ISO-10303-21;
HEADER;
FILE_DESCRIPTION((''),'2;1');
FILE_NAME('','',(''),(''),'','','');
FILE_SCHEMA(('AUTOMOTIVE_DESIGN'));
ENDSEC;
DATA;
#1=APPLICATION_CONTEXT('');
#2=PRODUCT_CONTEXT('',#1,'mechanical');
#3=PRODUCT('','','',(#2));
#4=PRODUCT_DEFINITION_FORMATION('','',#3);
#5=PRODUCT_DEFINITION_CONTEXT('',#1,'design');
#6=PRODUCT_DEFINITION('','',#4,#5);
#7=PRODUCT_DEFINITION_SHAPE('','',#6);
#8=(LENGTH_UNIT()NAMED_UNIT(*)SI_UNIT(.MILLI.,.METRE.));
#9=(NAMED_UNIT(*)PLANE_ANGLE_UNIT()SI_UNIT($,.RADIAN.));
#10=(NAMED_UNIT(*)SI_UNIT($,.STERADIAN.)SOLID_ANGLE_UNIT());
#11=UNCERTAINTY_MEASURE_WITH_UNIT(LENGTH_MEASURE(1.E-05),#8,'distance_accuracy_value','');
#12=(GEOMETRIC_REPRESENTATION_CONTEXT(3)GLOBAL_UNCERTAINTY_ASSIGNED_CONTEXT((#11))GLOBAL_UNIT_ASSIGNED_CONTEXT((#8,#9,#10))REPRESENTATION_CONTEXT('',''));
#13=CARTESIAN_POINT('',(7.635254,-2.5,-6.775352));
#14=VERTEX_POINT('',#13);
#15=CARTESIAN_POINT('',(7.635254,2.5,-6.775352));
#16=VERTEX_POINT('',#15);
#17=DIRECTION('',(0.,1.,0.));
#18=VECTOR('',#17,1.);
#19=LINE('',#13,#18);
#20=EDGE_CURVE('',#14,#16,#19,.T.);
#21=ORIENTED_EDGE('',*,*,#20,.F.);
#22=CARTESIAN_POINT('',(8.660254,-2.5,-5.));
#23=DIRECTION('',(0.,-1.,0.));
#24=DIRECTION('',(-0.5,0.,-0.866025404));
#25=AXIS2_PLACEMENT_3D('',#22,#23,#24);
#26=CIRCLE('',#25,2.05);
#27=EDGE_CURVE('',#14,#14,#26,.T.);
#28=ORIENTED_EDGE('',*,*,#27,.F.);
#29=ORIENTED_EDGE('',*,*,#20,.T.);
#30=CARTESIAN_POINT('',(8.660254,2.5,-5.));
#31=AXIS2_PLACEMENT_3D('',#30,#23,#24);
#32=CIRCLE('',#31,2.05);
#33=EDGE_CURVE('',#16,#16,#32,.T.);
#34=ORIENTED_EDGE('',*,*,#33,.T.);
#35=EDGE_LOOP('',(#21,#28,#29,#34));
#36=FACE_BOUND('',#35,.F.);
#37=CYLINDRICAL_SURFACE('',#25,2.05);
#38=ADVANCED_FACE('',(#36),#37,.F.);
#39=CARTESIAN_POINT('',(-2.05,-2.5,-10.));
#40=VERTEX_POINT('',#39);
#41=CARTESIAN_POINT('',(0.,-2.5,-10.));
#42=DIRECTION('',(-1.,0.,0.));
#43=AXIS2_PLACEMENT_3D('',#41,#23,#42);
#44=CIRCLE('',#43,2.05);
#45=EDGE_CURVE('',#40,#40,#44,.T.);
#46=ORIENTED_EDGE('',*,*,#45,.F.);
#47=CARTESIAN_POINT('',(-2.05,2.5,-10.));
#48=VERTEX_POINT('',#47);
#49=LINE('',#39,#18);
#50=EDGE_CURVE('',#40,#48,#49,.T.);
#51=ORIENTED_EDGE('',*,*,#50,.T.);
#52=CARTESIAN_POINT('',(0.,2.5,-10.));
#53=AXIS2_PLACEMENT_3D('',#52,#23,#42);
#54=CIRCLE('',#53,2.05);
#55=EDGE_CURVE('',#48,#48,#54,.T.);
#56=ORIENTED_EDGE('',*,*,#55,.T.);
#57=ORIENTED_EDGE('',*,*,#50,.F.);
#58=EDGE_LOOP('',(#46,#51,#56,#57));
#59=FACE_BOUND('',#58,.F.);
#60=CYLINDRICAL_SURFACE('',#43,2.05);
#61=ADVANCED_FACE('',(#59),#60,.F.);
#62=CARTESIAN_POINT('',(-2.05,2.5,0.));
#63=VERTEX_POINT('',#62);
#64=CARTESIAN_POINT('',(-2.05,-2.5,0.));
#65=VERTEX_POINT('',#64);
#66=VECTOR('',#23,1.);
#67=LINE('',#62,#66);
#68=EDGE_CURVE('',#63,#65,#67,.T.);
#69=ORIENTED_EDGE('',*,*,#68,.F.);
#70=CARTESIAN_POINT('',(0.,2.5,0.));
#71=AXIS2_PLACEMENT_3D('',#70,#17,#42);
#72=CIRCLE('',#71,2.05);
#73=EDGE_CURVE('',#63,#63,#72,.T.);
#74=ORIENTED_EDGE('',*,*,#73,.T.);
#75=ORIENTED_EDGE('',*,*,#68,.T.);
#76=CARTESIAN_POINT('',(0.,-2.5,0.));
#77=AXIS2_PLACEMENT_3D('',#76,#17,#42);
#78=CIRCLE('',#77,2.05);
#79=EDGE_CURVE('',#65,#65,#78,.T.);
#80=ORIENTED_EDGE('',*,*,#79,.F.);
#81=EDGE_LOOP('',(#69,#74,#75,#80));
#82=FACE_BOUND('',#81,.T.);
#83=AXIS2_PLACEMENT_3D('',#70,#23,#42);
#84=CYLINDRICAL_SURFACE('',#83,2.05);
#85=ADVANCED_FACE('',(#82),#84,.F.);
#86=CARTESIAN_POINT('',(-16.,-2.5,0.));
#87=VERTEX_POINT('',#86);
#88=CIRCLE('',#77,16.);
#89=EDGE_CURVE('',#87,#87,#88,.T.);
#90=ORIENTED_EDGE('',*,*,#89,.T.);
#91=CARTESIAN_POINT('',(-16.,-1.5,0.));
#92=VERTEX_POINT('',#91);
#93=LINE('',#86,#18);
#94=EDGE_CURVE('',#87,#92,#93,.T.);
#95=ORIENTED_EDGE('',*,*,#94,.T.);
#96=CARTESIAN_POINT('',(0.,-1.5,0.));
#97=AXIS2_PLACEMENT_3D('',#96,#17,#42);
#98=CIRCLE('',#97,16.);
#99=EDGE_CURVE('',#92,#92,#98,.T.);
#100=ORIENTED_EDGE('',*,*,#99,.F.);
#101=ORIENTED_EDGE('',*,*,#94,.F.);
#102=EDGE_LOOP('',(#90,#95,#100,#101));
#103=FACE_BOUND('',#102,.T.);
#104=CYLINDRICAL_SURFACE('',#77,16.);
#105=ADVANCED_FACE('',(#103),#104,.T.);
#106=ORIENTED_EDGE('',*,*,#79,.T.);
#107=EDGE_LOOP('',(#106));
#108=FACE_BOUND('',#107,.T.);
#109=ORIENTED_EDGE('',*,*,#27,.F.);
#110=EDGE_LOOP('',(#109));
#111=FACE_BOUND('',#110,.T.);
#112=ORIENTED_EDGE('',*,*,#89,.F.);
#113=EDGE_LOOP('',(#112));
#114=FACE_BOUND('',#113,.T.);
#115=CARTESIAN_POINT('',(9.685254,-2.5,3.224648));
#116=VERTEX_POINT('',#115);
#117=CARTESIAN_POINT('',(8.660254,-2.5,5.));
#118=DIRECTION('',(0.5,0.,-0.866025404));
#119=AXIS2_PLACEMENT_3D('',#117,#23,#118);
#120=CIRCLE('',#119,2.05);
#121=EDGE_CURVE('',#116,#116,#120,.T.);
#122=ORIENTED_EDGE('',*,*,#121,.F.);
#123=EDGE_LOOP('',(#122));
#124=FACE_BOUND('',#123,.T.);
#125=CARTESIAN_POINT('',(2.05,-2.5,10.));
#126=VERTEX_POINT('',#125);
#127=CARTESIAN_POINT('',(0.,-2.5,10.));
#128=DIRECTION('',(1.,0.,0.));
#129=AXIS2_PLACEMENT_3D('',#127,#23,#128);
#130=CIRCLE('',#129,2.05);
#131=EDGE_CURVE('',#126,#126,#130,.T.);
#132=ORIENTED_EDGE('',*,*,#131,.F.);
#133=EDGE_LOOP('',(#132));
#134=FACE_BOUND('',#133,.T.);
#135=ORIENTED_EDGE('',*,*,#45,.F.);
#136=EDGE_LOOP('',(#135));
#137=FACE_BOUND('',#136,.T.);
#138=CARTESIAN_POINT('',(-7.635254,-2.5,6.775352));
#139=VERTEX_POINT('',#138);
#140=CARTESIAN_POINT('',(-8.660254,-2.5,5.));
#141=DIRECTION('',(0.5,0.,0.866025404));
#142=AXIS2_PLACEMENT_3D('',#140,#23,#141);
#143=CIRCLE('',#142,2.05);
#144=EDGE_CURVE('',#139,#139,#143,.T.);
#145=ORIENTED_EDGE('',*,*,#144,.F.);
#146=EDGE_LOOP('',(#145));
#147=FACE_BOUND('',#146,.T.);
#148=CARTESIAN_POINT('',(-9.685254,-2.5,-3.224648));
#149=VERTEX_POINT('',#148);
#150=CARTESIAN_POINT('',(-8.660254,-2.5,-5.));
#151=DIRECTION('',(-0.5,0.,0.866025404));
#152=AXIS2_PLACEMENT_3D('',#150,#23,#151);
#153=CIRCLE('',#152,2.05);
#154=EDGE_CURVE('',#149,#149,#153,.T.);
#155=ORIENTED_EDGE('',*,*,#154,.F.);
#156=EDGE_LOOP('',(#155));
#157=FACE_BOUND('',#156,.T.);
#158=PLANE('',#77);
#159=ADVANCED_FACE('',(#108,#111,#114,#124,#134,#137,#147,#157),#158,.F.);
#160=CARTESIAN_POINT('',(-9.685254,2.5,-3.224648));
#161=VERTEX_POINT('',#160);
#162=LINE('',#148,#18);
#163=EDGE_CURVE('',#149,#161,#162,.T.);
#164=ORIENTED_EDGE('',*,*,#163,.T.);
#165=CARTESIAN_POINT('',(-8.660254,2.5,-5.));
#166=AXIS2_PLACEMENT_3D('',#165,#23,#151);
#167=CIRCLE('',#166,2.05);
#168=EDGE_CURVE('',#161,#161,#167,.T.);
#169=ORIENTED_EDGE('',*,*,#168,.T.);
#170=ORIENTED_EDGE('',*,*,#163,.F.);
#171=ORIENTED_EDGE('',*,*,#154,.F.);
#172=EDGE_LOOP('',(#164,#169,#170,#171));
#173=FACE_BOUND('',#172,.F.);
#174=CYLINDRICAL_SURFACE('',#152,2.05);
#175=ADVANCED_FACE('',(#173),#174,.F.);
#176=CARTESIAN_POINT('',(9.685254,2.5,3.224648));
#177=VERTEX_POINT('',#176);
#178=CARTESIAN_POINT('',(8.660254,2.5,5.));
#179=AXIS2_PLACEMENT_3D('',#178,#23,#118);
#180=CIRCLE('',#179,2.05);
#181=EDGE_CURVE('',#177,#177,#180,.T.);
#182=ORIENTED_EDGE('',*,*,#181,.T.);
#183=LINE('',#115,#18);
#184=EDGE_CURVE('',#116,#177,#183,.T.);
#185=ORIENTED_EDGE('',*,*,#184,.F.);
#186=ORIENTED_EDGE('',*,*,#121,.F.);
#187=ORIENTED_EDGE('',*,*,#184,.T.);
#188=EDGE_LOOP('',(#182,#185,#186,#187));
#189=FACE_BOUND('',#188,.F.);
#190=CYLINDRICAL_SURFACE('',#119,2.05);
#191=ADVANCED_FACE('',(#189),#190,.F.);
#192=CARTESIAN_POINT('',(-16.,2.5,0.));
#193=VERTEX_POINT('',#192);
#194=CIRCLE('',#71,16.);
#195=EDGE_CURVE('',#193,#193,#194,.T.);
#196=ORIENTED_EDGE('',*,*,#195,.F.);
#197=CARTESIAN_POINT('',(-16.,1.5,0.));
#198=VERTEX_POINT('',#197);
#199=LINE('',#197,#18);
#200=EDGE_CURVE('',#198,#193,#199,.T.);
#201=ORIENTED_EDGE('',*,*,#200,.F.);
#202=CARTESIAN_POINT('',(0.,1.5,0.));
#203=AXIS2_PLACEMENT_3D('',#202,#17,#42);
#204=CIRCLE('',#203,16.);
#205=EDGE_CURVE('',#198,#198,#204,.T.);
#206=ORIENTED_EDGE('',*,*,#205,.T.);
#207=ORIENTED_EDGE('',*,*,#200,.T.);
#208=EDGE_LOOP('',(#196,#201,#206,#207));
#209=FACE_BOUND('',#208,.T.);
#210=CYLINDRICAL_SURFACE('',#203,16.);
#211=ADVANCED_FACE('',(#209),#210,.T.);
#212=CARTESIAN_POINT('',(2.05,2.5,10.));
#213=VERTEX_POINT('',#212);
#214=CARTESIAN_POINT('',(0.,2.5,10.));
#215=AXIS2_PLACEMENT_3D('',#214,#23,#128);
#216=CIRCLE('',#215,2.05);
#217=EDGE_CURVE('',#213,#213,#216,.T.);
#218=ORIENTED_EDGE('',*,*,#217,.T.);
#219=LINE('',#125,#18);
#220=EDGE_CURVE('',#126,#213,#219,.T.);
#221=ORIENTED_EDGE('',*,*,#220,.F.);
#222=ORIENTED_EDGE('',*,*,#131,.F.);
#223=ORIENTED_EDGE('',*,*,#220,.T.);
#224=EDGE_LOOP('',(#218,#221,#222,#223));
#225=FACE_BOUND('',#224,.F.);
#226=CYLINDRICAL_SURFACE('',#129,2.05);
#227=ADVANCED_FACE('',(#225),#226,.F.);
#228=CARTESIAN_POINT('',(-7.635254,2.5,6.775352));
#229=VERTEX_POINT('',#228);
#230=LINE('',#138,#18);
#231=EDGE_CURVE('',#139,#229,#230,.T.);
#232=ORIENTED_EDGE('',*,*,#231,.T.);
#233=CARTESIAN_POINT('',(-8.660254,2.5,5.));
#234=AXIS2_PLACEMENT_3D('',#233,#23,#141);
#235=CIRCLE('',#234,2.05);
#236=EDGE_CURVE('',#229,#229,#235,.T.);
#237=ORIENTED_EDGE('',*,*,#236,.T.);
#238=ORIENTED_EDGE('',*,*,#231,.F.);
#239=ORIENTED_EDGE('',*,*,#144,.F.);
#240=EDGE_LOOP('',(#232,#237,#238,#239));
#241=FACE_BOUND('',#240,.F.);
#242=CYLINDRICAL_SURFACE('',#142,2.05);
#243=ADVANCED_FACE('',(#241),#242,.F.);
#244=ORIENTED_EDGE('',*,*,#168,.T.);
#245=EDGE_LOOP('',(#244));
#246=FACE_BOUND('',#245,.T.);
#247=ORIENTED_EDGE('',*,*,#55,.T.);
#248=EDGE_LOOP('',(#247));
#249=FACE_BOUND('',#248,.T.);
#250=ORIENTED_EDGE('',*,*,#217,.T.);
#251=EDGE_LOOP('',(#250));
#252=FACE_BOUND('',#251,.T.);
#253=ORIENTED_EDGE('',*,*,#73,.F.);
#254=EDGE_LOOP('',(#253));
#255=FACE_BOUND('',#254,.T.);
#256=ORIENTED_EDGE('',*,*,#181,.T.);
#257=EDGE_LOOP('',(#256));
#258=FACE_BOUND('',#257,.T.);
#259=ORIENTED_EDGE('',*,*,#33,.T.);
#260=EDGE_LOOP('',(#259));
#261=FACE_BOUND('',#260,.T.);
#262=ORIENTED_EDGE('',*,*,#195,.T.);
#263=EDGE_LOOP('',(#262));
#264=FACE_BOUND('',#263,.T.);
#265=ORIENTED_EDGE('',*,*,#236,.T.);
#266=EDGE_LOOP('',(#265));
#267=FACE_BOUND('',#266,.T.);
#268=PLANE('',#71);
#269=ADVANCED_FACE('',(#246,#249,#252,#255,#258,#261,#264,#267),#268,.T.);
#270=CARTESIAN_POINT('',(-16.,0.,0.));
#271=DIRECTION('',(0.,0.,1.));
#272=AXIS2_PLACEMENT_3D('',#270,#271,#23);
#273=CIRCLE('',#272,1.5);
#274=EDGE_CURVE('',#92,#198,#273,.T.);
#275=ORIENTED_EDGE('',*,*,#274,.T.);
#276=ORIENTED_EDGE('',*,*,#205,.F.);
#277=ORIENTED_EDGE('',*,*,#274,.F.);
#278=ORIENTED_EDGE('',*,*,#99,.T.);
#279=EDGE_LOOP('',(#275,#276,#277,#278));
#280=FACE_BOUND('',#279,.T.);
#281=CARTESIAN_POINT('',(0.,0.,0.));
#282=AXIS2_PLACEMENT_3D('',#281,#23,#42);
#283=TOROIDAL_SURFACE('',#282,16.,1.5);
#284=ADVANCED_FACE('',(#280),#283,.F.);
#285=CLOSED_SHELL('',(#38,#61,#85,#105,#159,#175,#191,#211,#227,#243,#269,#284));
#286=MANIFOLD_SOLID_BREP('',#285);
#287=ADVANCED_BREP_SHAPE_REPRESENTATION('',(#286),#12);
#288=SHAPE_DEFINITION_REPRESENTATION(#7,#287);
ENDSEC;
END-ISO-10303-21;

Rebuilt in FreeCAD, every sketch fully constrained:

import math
import FreeCAD as App
import Part
import Sketcher

doc = App.newDocument("Part")
body = doc.addObject("PartDesign::Body", "Body")

sketch1 = doc.addObject("Sketcher::SketchObject", "Sketch")
body.addObject(sketch1)
sketch1.AttachmentSupport = (doc.XY_Plane, [""])
sketch1.MapMode = "FlatFace"
sketch1.addGeometry(Part.LineSegment(App.Vector(-2, -2.5, 0), App.Vector(-2, 2.5, 0)), False)
sketch1.addGeometry(Part.LineSegment(App.Vector(-2, 2.5, 0), App.Vector(-16, 2.5, 0)), False)
sketch1.addGeometry(Part.LineSegment(App.Vector(-16, 2.5, 0), App.Vector(-16, 1.5, 0)), False)
sketch1.addGeometry(Part.ArcOfCircle(Part.Circle(App.Vector(-16, 0, 0), App.Vector(0, 0, 1), 1.5), math.radians(-90), math.radians(90)), False)
sketch1.addGeometry(Part.LineSegment(App.Vector(-16, -1.5, 0), App.Vector(-16, -2.5, 0)), False)
sketch1.addGeometry(Part.LineSegment(App.Vector(-16, -2.5, 0), App.Vector(-2, -2.5, 0)), False)
sketch1.addConstraint(Sketcher.Constraint("Coincident", 0, 2, 1, 1))
sketch1.addConstraint(Sketcher.Constraint("Coincident", 1, 2, 2, 1))
sketch1.addConstraint(Sketcher.Constraint("Coincident", 2, 2, 3, 2))
sketch1.addConstraint(Sketcher.Constraint("Coincident", 3, 1, 4, 1))
sketch1.addConstraint(Sketcher.Constraint("Coincident", 4, 2, 5, 1))
sketch1.addConstraint(Sketcher.Constraint("Coincident", 5, 2, 0, 1))
sketch1.addConstraint(Sketcher.Constraint("Vertical", 0))
sketch1.addConstraint(Sketcher.Constraint("Horizontal", 1))
sketch1.addConstraint(Sketcher.Constraint("Vertical", 2))
sketch1.addConstraint(Sketcher.Constraint("Vertical", 4))
sketch1.addConstraint(Sketcher.Constraint("Horizontal", 5))
sketch1.addConstraint(Sketcher.Constraint("Symmetric", 2, 2, 3, 1, -1))
sketch1.addConstraint(Sketcher.Constraint("Vertical", 3, 3, 1, 2))
sketch1.addConstraint(Sketcher.Constraint("Equal", 2, 4))
sketch1.addConstraint(Sketcher.Constraint("Radius", 3, 1.5))
sketch1.addConstraint(Sketcher.Constraint("DistanceY", 0, 1, 0, 2, 5.0))
sketch1.addConstraint(Sketcher.Constraint("DistanceX", 3, 3, -1, 1, 16.0))
sketch1.addConstraint(Sketcher.Constraint("DistanceX", 1, 2, 1, 1, 13.95))
revolution = doc.addObject("PartDesign::Revolution", "Revolution")
body.addObject(revolution)
revolution.Profile = sketch1
revolution.ReferenceAxis = (sketch1, ["V_Axis"])
revolution.Angle = 360

sketch2 = doc.addObject("Sketcher::SketchObject", "Sketch001")
body.addObject(sketch2)
sketch2.AttachmentSupport = (doc.XZ_Plane, [""])
sketch2.MapMode = "FlatFace"
sketch2.AttachmentOffset = App.Placement(App.Vector(0, 0, 2.5), App.Rotation())
sketch2.addGeometry(Part.Circle(App.Vector(0, 10, 0), App.Vector(0, 0, 1), 2), False)
sketch2.addConstraint(Sketcher.Constraint("PointOnObject", 0, 3, -2))
sketch2.addConstraint(Sketcher.Constraint("Diameter", 0, 4.1))
sketch2.addConstraint(Sketcher.Constraint("DistanceY", -1, 1, 0, 3, 10.0))
pocket1 = doc.addObject("PartDesign::Pocket", "Pocket")
body.addObject(pocket1)
pocket1.Profile = sketch2
pocket1.Type = "ThroughAll"
doc.recompute()

polarpattern = doc.addObject("PartDesign::PolarPattern", "PolarPattern")
body.addObject(polarpattern)
polarpattern.Originals = [pocket1]
polarpattern.Axis = (doc.Y_Axis, [""])
polarpattern.Angle = 360
polarpattern.Occurrences = 6
body.Tip = polarpattern

doc.recompute()
